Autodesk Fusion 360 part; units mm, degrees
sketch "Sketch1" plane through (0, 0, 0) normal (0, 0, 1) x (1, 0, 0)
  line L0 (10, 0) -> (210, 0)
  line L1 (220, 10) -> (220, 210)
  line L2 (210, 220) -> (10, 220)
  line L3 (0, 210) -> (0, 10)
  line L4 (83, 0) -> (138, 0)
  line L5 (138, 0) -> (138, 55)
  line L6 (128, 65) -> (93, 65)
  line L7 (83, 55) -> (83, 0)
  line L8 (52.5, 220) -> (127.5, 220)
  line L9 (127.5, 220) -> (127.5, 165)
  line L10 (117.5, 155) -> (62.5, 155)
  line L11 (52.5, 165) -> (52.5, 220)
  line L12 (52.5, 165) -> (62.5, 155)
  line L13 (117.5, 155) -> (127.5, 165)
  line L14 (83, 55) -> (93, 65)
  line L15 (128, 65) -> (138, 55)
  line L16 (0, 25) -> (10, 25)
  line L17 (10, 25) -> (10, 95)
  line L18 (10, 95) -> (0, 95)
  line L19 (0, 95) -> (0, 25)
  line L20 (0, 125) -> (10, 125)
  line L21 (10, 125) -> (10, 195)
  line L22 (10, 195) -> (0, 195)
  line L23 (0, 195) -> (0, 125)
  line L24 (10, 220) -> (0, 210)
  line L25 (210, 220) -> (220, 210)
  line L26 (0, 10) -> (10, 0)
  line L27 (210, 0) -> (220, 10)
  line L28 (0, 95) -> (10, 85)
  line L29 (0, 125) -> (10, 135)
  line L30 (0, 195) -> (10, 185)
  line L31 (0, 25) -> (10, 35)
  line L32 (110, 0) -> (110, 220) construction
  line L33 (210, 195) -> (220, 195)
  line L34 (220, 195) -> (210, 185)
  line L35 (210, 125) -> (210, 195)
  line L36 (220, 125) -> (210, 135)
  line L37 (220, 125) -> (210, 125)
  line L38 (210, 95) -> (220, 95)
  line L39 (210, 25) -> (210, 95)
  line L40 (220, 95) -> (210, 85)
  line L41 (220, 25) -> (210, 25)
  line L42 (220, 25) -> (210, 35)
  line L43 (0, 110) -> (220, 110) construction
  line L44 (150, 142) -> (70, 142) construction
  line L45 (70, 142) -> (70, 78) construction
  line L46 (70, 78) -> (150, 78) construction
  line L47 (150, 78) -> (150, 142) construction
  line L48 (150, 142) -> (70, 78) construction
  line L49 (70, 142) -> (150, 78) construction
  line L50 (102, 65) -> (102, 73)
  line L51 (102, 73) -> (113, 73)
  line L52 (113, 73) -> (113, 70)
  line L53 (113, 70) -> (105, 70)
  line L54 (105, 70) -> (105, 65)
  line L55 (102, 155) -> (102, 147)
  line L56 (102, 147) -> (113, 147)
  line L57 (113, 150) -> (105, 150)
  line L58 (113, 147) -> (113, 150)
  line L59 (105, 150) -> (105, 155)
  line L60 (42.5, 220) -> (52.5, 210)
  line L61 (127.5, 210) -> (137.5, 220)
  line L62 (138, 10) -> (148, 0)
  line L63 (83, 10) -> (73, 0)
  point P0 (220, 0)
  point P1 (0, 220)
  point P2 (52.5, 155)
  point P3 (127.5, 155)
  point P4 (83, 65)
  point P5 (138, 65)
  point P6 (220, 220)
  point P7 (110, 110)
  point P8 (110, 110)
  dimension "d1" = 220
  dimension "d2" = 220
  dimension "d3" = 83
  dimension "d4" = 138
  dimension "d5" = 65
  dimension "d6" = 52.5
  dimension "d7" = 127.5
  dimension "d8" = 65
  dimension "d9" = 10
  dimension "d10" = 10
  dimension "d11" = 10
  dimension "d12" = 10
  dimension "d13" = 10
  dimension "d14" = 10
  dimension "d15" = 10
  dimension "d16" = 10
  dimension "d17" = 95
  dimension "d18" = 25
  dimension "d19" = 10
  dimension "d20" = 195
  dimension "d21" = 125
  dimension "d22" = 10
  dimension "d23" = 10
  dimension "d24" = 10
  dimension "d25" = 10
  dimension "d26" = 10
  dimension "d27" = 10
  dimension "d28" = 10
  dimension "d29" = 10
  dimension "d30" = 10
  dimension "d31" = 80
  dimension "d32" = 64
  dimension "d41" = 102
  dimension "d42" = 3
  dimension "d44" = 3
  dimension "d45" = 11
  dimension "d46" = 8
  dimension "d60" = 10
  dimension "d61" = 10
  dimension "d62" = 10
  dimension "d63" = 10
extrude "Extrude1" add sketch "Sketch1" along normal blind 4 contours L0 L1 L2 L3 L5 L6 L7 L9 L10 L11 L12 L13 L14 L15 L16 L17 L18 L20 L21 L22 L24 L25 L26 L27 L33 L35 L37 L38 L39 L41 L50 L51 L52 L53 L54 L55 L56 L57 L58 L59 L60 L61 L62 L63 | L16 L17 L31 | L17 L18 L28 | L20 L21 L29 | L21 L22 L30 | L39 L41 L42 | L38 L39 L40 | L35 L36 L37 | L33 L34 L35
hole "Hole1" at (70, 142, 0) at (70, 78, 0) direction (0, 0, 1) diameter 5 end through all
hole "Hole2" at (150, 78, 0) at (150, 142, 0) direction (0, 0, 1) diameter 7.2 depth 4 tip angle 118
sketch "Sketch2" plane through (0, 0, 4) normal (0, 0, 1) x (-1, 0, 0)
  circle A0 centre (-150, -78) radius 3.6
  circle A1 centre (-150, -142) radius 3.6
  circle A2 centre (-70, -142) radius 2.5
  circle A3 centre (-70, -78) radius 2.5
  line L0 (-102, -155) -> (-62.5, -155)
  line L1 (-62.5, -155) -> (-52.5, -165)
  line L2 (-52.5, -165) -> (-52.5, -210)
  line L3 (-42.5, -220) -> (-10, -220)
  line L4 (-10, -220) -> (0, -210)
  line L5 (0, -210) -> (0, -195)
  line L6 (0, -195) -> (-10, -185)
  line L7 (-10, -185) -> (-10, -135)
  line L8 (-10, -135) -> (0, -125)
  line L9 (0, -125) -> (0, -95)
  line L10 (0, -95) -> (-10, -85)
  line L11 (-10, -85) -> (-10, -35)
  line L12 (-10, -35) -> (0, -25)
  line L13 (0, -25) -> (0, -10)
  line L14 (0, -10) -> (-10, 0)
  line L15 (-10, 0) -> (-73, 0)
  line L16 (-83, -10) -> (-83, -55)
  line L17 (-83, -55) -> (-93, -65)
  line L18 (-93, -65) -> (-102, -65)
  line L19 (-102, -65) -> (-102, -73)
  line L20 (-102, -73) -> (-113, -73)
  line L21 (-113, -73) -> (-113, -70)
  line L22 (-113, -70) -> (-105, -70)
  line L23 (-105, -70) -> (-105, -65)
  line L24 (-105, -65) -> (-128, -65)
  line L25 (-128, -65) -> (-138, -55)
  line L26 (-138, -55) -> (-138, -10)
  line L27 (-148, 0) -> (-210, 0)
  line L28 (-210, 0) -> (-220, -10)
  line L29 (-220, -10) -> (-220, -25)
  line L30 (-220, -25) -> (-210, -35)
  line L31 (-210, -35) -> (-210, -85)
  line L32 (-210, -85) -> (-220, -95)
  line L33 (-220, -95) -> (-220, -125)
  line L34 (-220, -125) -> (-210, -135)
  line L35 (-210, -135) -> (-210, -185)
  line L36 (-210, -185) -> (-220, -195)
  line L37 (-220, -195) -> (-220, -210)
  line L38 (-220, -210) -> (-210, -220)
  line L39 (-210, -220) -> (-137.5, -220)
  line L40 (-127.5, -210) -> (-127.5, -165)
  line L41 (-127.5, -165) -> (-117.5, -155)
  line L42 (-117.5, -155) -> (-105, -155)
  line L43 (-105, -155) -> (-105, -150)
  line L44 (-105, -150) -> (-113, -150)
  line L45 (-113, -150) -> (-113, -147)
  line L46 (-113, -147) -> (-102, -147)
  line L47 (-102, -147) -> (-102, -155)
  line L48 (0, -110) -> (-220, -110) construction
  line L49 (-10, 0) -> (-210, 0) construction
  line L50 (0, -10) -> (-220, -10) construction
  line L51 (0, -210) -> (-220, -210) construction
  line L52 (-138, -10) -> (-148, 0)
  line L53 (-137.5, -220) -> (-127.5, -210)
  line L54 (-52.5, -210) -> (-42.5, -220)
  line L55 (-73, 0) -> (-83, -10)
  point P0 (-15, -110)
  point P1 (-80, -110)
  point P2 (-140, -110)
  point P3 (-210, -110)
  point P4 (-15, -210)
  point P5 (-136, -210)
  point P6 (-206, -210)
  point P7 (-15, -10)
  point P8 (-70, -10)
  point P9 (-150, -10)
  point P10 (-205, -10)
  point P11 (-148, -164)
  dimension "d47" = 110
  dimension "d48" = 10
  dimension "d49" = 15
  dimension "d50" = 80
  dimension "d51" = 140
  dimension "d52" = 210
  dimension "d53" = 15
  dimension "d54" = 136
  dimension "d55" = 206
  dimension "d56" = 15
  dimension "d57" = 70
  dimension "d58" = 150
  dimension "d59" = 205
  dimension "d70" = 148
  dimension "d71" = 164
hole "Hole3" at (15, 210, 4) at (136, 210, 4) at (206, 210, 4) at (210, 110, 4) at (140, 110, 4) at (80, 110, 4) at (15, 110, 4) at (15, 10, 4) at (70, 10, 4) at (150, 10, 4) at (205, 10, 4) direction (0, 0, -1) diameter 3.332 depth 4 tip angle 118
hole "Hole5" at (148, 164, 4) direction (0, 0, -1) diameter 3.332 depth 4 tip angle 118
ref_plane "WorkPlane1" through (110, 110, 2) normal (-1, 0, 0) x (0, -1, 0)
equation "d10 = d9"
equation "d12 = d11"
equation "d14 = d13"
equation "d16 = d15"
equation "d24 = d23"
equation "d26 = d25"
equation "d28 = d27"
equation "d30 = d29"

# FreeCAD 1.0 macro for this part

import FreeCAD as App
import Part
import Sketcher

doc = App.newDocument("Part")
body = doc.addObject("PartDesign::Body", "Body")

sketch1 = body.newObject("Sketcher::SketchObject", "Sketch")
sketch1.AttachmentSupport = (doc.getObject("XY_Plane"), [""])
sketch1.MapMode = "FlatFace"
sketch1.addGeometry(Part.LineSegment(App.Vector(0, 10, 0), App.Vector(10, 0, 0)), False)
sketch1.addGeometry(Part.LineSegment(App.Vector(10, 0, 0), App.Vector(73, 0, 0)), False)
sketch1.addGeometry(Part.LineSegment(App.Vector(73, 0, 0), App.Vector(83, 10, 0)), False)
sketch1.addGeometry(Part.LineSegment(App.Vector(83, 10, 0), App.Vector(83, 55, 0)), False)
sketch1.addGeometry(Part.LineSegment(App.Vector(83, 55, 0), App.Vector(93, 65, 0)), False)
sketch1.addGeometry(Part.LineSegment(App.Vector(93, 65, 0), App.Vector(102, 65, 0)), False)
sketch1.addGeometry(Part.LineSegment(App.Vector(102, 65, 0), App.Vector(102, 73, 0)), False)
sketch1.addGeometry(Part.LineSegment(App.Vector(102, 73, 0), App.Vector(113, 73, 0)), False)
sketch1.addGeometry(Part.LineSegment(App.Vector(113, 73, 0), App.Vector(113, 70, 0)), False)
sketch1.addGeometry(Part.LineSegment(App.Vector(113, 70, 0), App.Vector(105, 70, 0)), False)
sketch1.addGeometry(Part.LineSegment(App.Vector(105, 70, 0), App.Vector(105, 65, 0)), False)
sketch1.addGeometry(Part.LineSegment(App.Vector(105, 65, 0), App.Vector(128, 65, 0)), False)
sketch1.addGeometry(Part.LineSegment(App.Vector(128, 65, 0), App.Vector(138, 55, 0)), False)
sketch1.addGeometry(Part.LineSegment(App.Vector(138, 55, 0), App.Vector(138, 10, 0)), False)
sketch1.addGeometry(Part.LineSegment(App.Vector(138, 10, 0), App.Vector(148, 0, 0)), False)
sketch1.addGeometry(Part.LineSegment(App.Vector(148, 0, 0), App.Vector(210, 0, 0)), False)
sketch1.addGeometry(Part.LineSegment(App.Vector(210, 0, 0), App.Vector(220, 10, 0)), False)
sketch1.addGeometry(Part.LineSegment(App.Vector(220, 10, 0), App.Vector(220, 25, 0)), False)
sketch1.addGeometry(Part.LineSegment(App.Vector(220, 25, 0), App.Vector(210, 35, 0)), False)
sketch1.addGeometry(Part.LineSegment(App.Vector(210, 35, 0), App.Vector(210, 85, 0)), False)
sketch1.addGeometry(Part.LineSegment(App.Vector(210, 85, 0), App.Vector(220, 95, 0)), False)
sketch1.addGeometry(Part.LineSegment(App.Vector(220, 95, 0), App.Vector(220, 125, 0)), False)
sketch1.addGeometry(Part.LineSegment(App.Vector(220, 125, 0), App.Vector(210, 135, 0)), False)
sketch1.addGeometry(Part.LineSegment(App.Vector(210, 135, 0), App.Vector(210, 185, 0)), False)
sketch1.addGeometry(Part.LineSegment(App.Vector(210, 185, 0), App.Vector(220, 195, 0)), False)
sketch1.addGeometry(Part.LineSegment(App.Vector(220, 195, 0), App.Vector(220, 210, 0)), False)
sketch1.addGeometry(Part.LineSegment(App.Vector(220, 210, 0), App.Vector(210, 220, 0)), False)
sketch1.addGeometry(Part.LineSegment(App.Vector(210, 220, 0), App.Vector(137.5, 220, 0)), False)
sketch1.addGeometry(Part.LineSegment(App.Vector(137.5, 220, 0), App.Vector(127.5, 210, 0)), False)
sketch1.addGeometry(Part.LineSegment(App.Vector(127.5, 210, 0), App.Vector(127.5, 165, 0)), False)
sketch1.addGeometry(Part.LineSegment(App.Vector(127.5, 165, 0), App.Vector(117.5, 155, 0)), False)
sketch1.addGeometry(Part.LineSegment(App.Vector(117.5, 155, 0), App.Vector(105, 155, 0)), False)
sketch1.addGeometry(Part.LineSegment(App.Vector(105, 155, 0), App.Vector(105, 150, 0)), False)
sketch1.addGeometry(Part.LineSegment(App.Vector(105, 150, 0), App.Vector(113, 150, 0)), False)
sketch1.addGeometry(Part.LineSegment(App.Vector(113, 150, 0), App.Vector(113, 147, 0)), False)
sketch1.addGeometry(Part.LineSegment(App.Vector(113, 147, 0), App.Vector(102, 147, 0)), False)
sketch1.addGeometry(Part.LineSegment(App.Vector(102, 147, 0), App.Vector(102, 155, 0)), False)
sketch1.addGeometry(Part.LineSegment(App.Vector(102, 155, 0), App.Vector(62.5, 155, 0)), False)
sketch1.addGeometry(Part.LineSegment(App.Vector(62.5, 155, 0), App.Vector(52.5, 165, 0)), False)
sketch1.addGeometry(Part.LineSegment(App.Vector(52.5, 165, 0), App.Vector(52.5, 210, 0)), False)
sketch1.addGeometry(Part.LineSegment(App.Vector(52.5, 210, 0), App.Vector(42.5, 220, 0)), False)
sketch1.addGeometry(Part.LineSegment(App.Vector(42.5, 220, 0), App.Vector(10, 220, 0)), False)
sketch1.addGeometry(Part.LineSegment(App.Vector(10, 220, 0), App.Vector(0, 210, 0)), False)
sketch1.addGeometry(Part.LineSegment(App.Vector(0, 210, 0), App.Vector(0, 195, 0)), False)
sketch1.addGeometry(Part.LineSegment(App.Vector(0, 195, 0), App.Vector(10, 185, 0)), False)
sketch1.addGeometry(Part.LineSegment(App.Vector(10, 185, 0), App.Vector(10, 135, 0)), False)
sketch1.addGeometry(Part.LineSegment(App.Vector(10, 135, 0), App.Vector(0, 125, 0)), False)
sketch1.addGeometry(Part.LineSegment(App.Vector(0, 125, 0), App.Vector(0, 95, 0)), False)
sketch1.addGeometry(Part.LineSegment(App.Vector(0, 95, 0), App.Vector(10, 85, 0)), False)
sketch1.addGeometry(Part.LineSegment(App.Vector(10, 85, 0), App.Vector(10, 35, 0)), False)
sketch1.addGeometry(Part.LineSegment(App.Vector(10, 35, 0), App.Vector(0, 25, 0)), False)
sketch1.addGeometry(Part.LineSegment(App.Vector(0, 25, 0), App.Vector(0, 10, 0)), False)
sketch1.addConstraint(Sketcher.Constraint("Coincident", 0, 2, 1, 1))
sketch1.addConstraint(Sketcher.Constraint("Coincident", 1, 2, 2, 1))
sketch1.addConstraint(Sketcher.Constraint("Coincident", 2, 2, 3, 1))
sketch1.addConstraint(Sketcher.Constraint("Coincident", 3, 2, 4, 1))
sketch1.addConstraint(Sketcher.Constraint("Coincident", 4, 2, 5, 1))
sketch1.addConstraint(Sketcher.Constraint("Coincident", 5, 2, 6, 1))
sketch1.addConstraint(Sketcher.Constraint("Coincident", 6, 2, 7, 1))
sketch1.addConstraint(Sketcher.Constraint("Coincident", 7, 2, 8, 1))
sketch1.addConstraint(Sketcher.Constraint("Coincident", 8, 2, 9, 1))
sketch1.addConstraint(Sketcher.Constraint("Coincident", 9, 2, 10, 1))
sketch1.addConstraint(Sketcher.Constraint("Coincident", 10, 2, 11, 1))
sketch1.addConstraint(Sketcher.Constraint("Coincident", 11, 2, 12, 1))
sketch1.addConstraint(Sketcher.Constraint("Coincident", 12, 2, 13, 1))
sketch1.addConstraint(Sketcher.Constraint("Coincident", 13, 2, 14, 1))
sketch1.addConstraint(Sketcher.Constraint("Coincident", 14, 2, 15, 1))
sketch1.addConstraint(Sketcher.Constraint("Coincident", 15, 2, 16, 1))
sketch1.addConstraint(Sketcher.Constraint("Coincident", 16, 2, 17, 1))
sketch1.addConstraint(Sketcher.Constraint("Coincident", 17, 2, 18, 1))
sketch1.addConstraint(Sketcher.Constraint("Coincident", 18, 2, 19, 1))
sketch1.addConstraint(Sketcher.Constraint("Coincident", 19, 2, 20, 1))
sketch1.addConstraint(Sketcher.Constraint("Coincident", 20, 2, 21, 1))
sketch1.addConstraint(Sketcher.Constraint("Coincident", 21, 2, 22, 1))
sketch1.addConstraint(Sketcher.Constraint("Coincident", 22, 2, 23, 1))
sketch1.addConstraint(Sketcher.Constraint("Coincident", 23, 2, 24, 1))
sketch1.addConstraint(Sketcher.Constraint("Coincident", 24, 2, 25, 1))
sketch1.addConstraint(Sketcher.Constraint("Coincident", 25, 2, 26, 1))
sketch1.addConstraint(Sketcher.Constraint("Coincident", 26, 2, 27, 1))
sketch1.addConstraint(Sketcher.Constraint("Coincident", 27, 2, 28, 1))
sketch1.addConstraint(Sketcher.Constraint("Coincident", 28, 2, 29, 1))
sketch1.addConstraint(Sketcher.Constraint("Coincident", 29, 2, 30, 1))
sketch1.addConstraint(Sketcher.Constraint("Coincident", 30, 2, 31, 1))
sketch1.addConstraint(Sketcher.Constraint("Coincident", 31, 2, 32, 1))
sketch1.addConstraint(Sketcher.Constraint("Coincident", 32, 2, 33, 1))
sketch1.addConstraint(Sketcher.Constraint("Coincident", 33, 2, 34, 1))
sketch1.addConstraint(Sketcher.Constraint("Coincident", 34, 2, 35, 1))
sketch1.addConstraint(Sketcher.Constraint("Coincident", 35, 2, 36, 1))
sketch1.addConstraint(Sketcher.Constraint("Coincident", 36, 2, 37, 1))
sketch1.addConstraint(Sketcher.Constraint("Coincident", 37, 2, 38, 1))
sketch1.addConstraint(Sketcher.Constraint("Coincident", 38, 2, 39, 1))
sketch1.addConstraint(Sketcher.Constraint("Coincident", 39, 2, 40, 1))
sketch1.addConstraint(Sketcher.Constraint("Coincident", 40, 2, 41, 1))
sketch1.addConstraint(Sketcher.Constraint("Coincident", 41, 2, 42, 1))
sketch1.addConstraint(Sketcher.Constraint("Coincident", 42, 2, 43, 1))
sketch1.addConstraint(Sketcher.Constraint("Coincident", 43, 2, 44, 1))
sketch1.addConstraint(Sketcher.Constraint("Coincident", 44, 2, 45, 1))
sketch1.addConstraint(Sketcher.Constraint("Coincident", 45, 2, 46, 1))
sketch1.addConstraint(Sketcher.Constraint("Coincident", 46, 2, 47, 1))
sketch1.addConstraint(Sketcher.Constraint("Coincident", 47, 2, 48, 1))
sketch1.addConstraint(Sketcher.Constraint("Coincident", 48, 2, 49, 1))
sketch1.addConstraint(Sketcher.Constraint("Coincident", 49, 2, 50, 1))
sketch1.addConstraint(Sketcher.Constraint("Coincident", 50, 2, 51, 1))
sketch1.addConstraint(Sketcher.Constraint("Coincident", 51, 2, 0, 1))
sketch1.addConstraint(Sketcher.Constraint("Horizontal", 1))
sketch1.addConstraint(Sketcher.Constraint("Vertical", 3))
sketch1.addConstraint(Sketcher.Constraint("Horizontal", 5))
sketch1.addConstraint(Sketcher.Constraint("Vertical", 6))
sketch1.addConstraint(Sketcher.Constraint("Horizontal", 7))
sketch1.addConstraint(Sketcher.Constraint("Vertical", 8))
sketch1.addConstraint(Sketcher.Constraint("Horizontal", 9))
sketch1.addConstraint(Sketcher.Constraint("Vertical", 10))
sketch1.addConstraint(Sketcher.Constraint("Horizontal", 11))
sketch1.addConstraint(Sketcher.Constraint("Vertical", 13))
sketch1.addConstraint(Sketcher.Constraint("Horizontal", 15))
sketch1.addConstraint(Sketcher.Constraint("Vertical", 17))
sketch1.addConstraint(Sketcher.Constraint("Vertical", 19))
sketch1.addConstraint(Sketcher.Constraint("Vertical", 21))
sketch1.addConstraint(Sketcher.Constraint("Vertical", 23))
sketch1.addConstraint(Sketcher.Constraint("Vertical", 25))
sketch1.addConstraint(Sketcher.Constraint("Horizontal", 27))
sketch1.addConstraint(Sketcher.Constraint("Vertical", 29))
sketch1.addConstraint(Sketcher.Constraint("Horizontal", 31))
sketch1.addConstraint(Sketcher.Constraint("Vertical", 32))
sketch1.addConstraint(Sketcher.Constraint("Horizontal", 33))
sketch1.addConstraint(Sketcher.Constraint("Vertical", 34))
sketch1.addConstraint(Sketcher.Constraint("Horizontal", 35))
sketch1.addConstraint(Sketcher.Constraint("Vertical", 36))
sketch1.addConstraint(Sketcher.Constraint("Horizontal", 37))
sketch1.addConstraint(Sketcher.Constraint("Vertical", 39))
sketch1.addConstraint(Sketcher.Constraint("Horizontal", 41))
sketch1.addConstraint(Sketcher.Constraint("Vertical", 43))
sketch1.addConstraint(Sketcher.Constraint("Vertical", 45))
sketch1.addConstraint(Sketcher.Constraint("Vertical", 47))
sketch1.addConstraint(Sketcher.Constraint("Vertical", 49))
sketch1.addConstraint(Sketcher.Constraint("Vertical", 51))
sketch1.addConstraint(Sketcher.Constraint("PointOnObject", 0, 2, -1))
sketch1.addConstraint(Sketcher.Constraint("PointOnObject", 14, 2, -1))
sketch1.addConstraint(Sketcher.Constraint("PointOnObject", 42, 2, -2))
sketch1.addConstraint(Sketcher.Constraint("PointOnObject", 46, 2, -2))
sketch1.addConstraint(Sketcher.Constraint("PointOnObject", 50, 2, -2))
sketch1.addConstraint(Sketcher.Constraint("Perpendicular", 0, 2))
sketch1.addConstraint(Sketcher.Constraint("Parallel", 2, 4))
sketch1.addConstraint(Sketcher.Constraint("Perpendicular", 4, 12))
sketch1.addConstraint(Sketcher.Constraint("Parallel", 12, 14))
sketch1.addConstraint(Sketcher.Constraint("Perpendicular", 14, 16))
sketch1.addConstraint(Sketcher.Constraint("Perpendicular", 16, 18))
sketch1.addConstraint(Sketcher.Constraint("Perpendicular", 18, 20))
sketch1.addConstraint(Sketcher.Constraint("Perpendicular", 20, 22))
sketch1.addConstraint(Sketcher.Constraint("Perpendicular", 22, 24))
sketch1.addConstraint(Sketcher.Constraint("Perpendicular", 24, 26))
sketch1.addConstraint(Sketcher.Constraint("Perpendicular", 26, 28))
sketch1.addConstraint(Sketcher.Constraint("Parallel", 28, 30))
sketch1.addConstraint(Sketcher.Constraint("Perpendicular", 30, 38))
sketch1.addConstraint(Sketcher.Constraint("Parallel", 38, 40))
sketch1.addConstraint(Sketcher.Constraint("Perpendicular", 40, 42))
sketch1.addConstraint(Sketcher.Constraint("Perpendicular", 42, 44))
sketch1.addConstraint(Sketcher.Constraint("Perpendicular", 44, 46))
sketch1.addConstraint(Sketcher.Constraint("Perpendicular", 46, 48))
sketch1.addConstraint(Sketcher.Constraint("Perpendicular", 48, 50))
sketch1.addConstraint(Sketcher.Constraint("Horizontal", 5, 2, 10, 2))
sketch1.addConstraint(Sketcher.Constraint("Horizontal", 3, 2, 12, 2))
sketch1.addConstraint(Sketcher.Constraint("Horizontal", 2, 2, 13, 2))
sketch1.addConstraint(Sketcher.Constraint("Horizontal", 13, 2, 16, 2))
sketch1.addConstraint(Sketcher.Constraint("Horizontal", 25, 2, 28, 2))
sketch1.addConstraint(Sketcher.Constraint("Horizontal", 31, 2, 36, 2))
sketch1.addConstraint(Sketcher.Constraint("Horizontal", 29, 2, 38, 2))
sketch1.addConstraint(Sketcher.Constraint("Horizontal", 28, 2, 39, 2))
sketch1.addConstraint(Sketcher.Constraint("Horizontal", 27, 2, 40, 2))
sketch1.addConstraint(Sketcher.Constraint("Horizontal", 39, 2, 42, 2))
sketch1.addConstraint(Sketcher.Constraint("Horizontal", 24, 2, 43, 2))
sketch1.addConstraint(Sketcher.Constraint("Horizontal", 23, 2, 44, 2))
sketch1.addConstraint(Sketcher.Constraint("Horizontal", 22, 2, 45, 2))
sketch1.addConstraint(Sketcher.Constraint("Horizontal", 21, 2, 46, 2))
sketch1.addConstraint(Sketcher.Constraint("Horizontal", 20, 2, 47, 2))
sketch1.addConstraint(Sketcher.Constraint("Horizontal", 19, 2, 48, 2))
sketch1.addConstraint(Sketcher.Constraint("Horizontal", 18, 2, 49, 2))
sketch1.addConstraint(Sketcher.Constraint("Horizontal", 17, 2, 50, 2))
sketch1.addConstraint(Sketcher.Constraint("Horizontal", 16, 2, 51, 2))
sketch1.addConstraint(Sketcher.Constraint("Vertical", 15, 2, 18, 2))
sketch1.addConstraint(Sketcher.Constraint("Vertical", 17, 2, 20, 2))
sketch1.addConstraint(Sketcher.Constraint("Vertical", 19, 2, 22, 2))
sketch1.addConstraint(Sketcher.Constraint("Vertical", 23, 2, 26, 2))
sketch1.addConstraint(Sketcher.Constraint("Vertical", 10, 2, 31, 2))
sketch1.addConstraint(Sketcher.Constraint("Vertical", 8, 2, 33, 2))
sketch1.addConstraint(Sketcher.Constraint("Vertical", 6, 2, 35, 2))
sketch1.addConstraint(Sketcher.Constraint("Equal", 33, 6))
sketch1.addConstraint(Sketcher.Constraint("Equal", 19, 23))
sketch1.addConstraint(Sketcher.Constraint("Equal", 17, 25))
sketch1.addConstraint(Sketcher.Constraint("Equal", 13, 29))
sketch1.addConstraint(Sketcher.Constraint("Equal", 10, 32))
sketch1.addConstraint(Sketcher.Constraint("Equal", 8, 34))
sketch1.addConstraint(Sketcher.Constraint("Equal", 2, 4))
sketch1.addConstraint(Sketcher.Constraint("Equal", 28, 30))
sketch1.addConstraint(Sketcher.Constraint("DistanceX", 7, 1, 7, 2, 11.0))
sketch1.addConstraint(Sketcher.Constraint("DistanceX", 9, 2, 9, 1, 8.0))
sketch1.addConstraint(Sketcher.Constraint("DistanceY", 8, 2, 8, 1, 3.0))
sketch1.addConstraint(Sketcher.Constraint("DistanceX", -1, 1, 0, 2, 10.0))
sketch1.addConstraint(Sketcher.Constraint("DistanceX", -1, 1, 2, 2, 83.0))
sketch1.addConstraint(Sketcher.Constraint("DistanceY", -1, 1, 4, 2, 65.0))
sketch1.addConstraint(Sketcher.Constraint("DistanceX", -1, 1, 5, 2, 102.0))
sketch1.addConstraint(Sketcher.Constraint("DistanceX", -1, 1, 12, 2, 138.0))
sketch1.addConstraint(Sketcher.Constraint("DistanceX", -1, 1, 16, 2, 220.0))
sketch1.addConstraint(Sketcher.Constraint("DistanceY", -1, 1, 17, 2, 25.0))
sketch1.addConstraint(Sketcher.Constraint("DistanceY", -1, 1, 20, 2, 95.0))
sketch1.addConstraint(Sketcher.Constraint("DistanceY", -1, 1, 21, 2, 125.0))
sketch1.addConstraint(Sketcher.Constraint("DistanceX", -1, 1, 28, 2, 127.5))
sketch1.addConstraint(Sketcher.Constraint("DistanceX", -1, 1, 38, 2, 52.5))
pad1 = body.newObject("PartDesign::Pad", "Pad")
pad1.Profile = sketch1
pad1.Length = 4

sketch2 = body.newObject("Sketcher::SketchObject", "Sketch001")
sketch2.AttachmentSupport = (doc.getObject("XY_Plane"), [""])
sketch2.MapMode = "FlatFace"
sketch2.addGeometry(Part.Circle(App.Vector(70, 142, 0), App.Vector(0, 0, 1), 2.5), False)
sketch2.addGeometry(Part.Circle(App.Vector(70, 78, 0), App.Vector(0, 0, 1), 2.5), False)
sketch2.addConstraint(Sketcher.Constraint("Equal", 0, 1))
sketch2.addConstraint(Sketcher.Constraint("Vertical", 0, 3, 1, 3))
sketch2.addConstraint(Sketcher.Constraint("Diameter", 0, 5.0))
sketch2.addConstraint(Sketcher.Constraint("DistanceX", -1, 1, 0, 3, 70.0))
sketch2.addConstraint(Sketcher.Constraint("DistanceY", -1, 1, 0, 3, 142.0))
sketch2.addConstraint(Sketcher.Constraint("DistanceY", -1, 1, 1, 3, 78.0))
doc.recompute()
hole = body.newObject("PartDesign::Hole", "Hole")
hole.Profile = sketch2
hole.ThreadType = "None"
hole.Diameter = 5
hole.DepthType = "ThroughAll"
hole.Reversed = True

sketch3 = body.newObject("Sketcher::SketchObject", "Sketch002")
sketch3.AttachmentSupport = (doc.getObject("XY_Plane"), [""])
sketch3.MapMode = "FlatFace"
sketch3.addGeometry(Part.Circle(App.Vector(150, 78, 0), App.Vector(0, 0, 1), 3.6), False)
sketch3.addGeometry(Part.Circle(App.Vector(150, 142, 0), App.Vector(0, 0, 1), 3.6), False)
sketch3.addConstraint(Sketcher.Constraint("Equal", 0, 1))
sketch3.addConstraint(Sketcher.Constraint("Vertical", 0, 3, 1, 3))
sketch3.addConstraint(Sketcher.Constraint("Diameter", 0, 7.2))
sketch3.addConstraint(Sketcher.Constraint("DistanceX", -1, 1, 0, 3, 150.0))
sketch3.addConstraint(Sketcher.Constraint("DistanceY", -1, 1, 0, 3, 78.0))
sketch3.addConstraint(Sketcher.Constraint("DistanceY", -1, 1, 1, 3, 142.0))
doc.recompute()
hole2 = body.newObject("PartDesign::Hole", "Hole001")
hole2.Profile = sketch3
hole2.ThreadType = "None"
hole2.Diameter = 7.2
hole2.DepthType = "Dimension"
hole2.Depth = 4
hole2.DrillPoint = "Angled"
hole2.DrillPointAngle = 118
hole2.Reversed = True

sketch4 = body.newObject("Sketcher::SketchObject", "Sketch003")
sketch4.AttachmentSupport = (doc.getObject("XY_Plane"), [""])
sketch4.MapMode = "FlatFace"
sketch4.AttachmentOffset = App.Placement(App.Vector(0, 0, 4), App.Rotation())
sketch4.addGeometry(Part.Circle(App.Vector(15, 210, 0), App.Vector(0, 0, 1), 1.666), False)
sketch4.addGeometry(Part.Circle(App.Vector(136, 210, 0), App.Vector(0, 0, 1), 1.666), False)
sketch4.addGeometry(Part.Circle(App.Vector(206, 210, 0), App.Vector(0, 0, 1), 1.666), False)
sketch4.addGeometry(Part.Circle(App.Vector(210, 110, 0), App.Vector(0, 0, 1), 1.666), False)
sketch4.addGeometry(Part.Circle(App.Vector(140, 110, 0), App.Vector(0, 0, 1), 1.666), False)
sketch4.addGeometry(Part.Circle(App.Vector(80, 110, 0), App.Vector(0, 0, 1), 1.666), False)
sketch4.addGeometry(Part.Circle(App.Vector(15, 110, 0), App.Vector(0, 0, 1), 1.666), False)
sketch4.addGeometry(Part.Circle(App.Vector(15, 10, 0), App.Vector(0, 0, 1), 1.666), False)
sketch4.addGeometry(Part.Circle(App.Vector(70, 10, 0), App.Vector(0, 0, 1), 1.666), False)
sketch4.addGeometry(Part.Circle(App.Vector(150, 10, 0), App.Vector(0, 0, 1), 1.666), False)
sketch4.addGeometry(Part.Circle(App.Vector(205, 10, 0), App.Vector(0, 0, 1), 1.666), False)
sketch4.addConstraint(Sketcher.Constraint("Equal", 0, 1))
sketch4.addConstraint(Sketcher.Constraint("Equal", 1, 2))
sketch4.addConstraint(Sketcher.Constraint("Equal", 2, 3))
sketch4.addConstraint(Sketcher.Constraint("Equal", 3, 4))
sketch4.addConstraint(Sketcher.Constraint("Equal", 4, 5))
sketch4.addConstraint(Sketcher.Constraint("Equal", 5, 6))
sketch4.addConstraint(Sketcher.Constraint("Equal", 6, 7))
sketch4.addConstraint(Sketcher.Constraint("Equal", 7, 8))
sketch4.addConstraint(Sketcher.Constraint("Equal", 8, 9))
sketch4.addConstraint(Sketcher.Constraint("Equal", 9, 10))
sketch4.addConstraint(Sketcher.Constraint("Horizontal", 0, 3, 1, 3))
sketch4.addConstraint(Sketcher.Constraint("Horizontal", 1, 3, 2, 3))
sketch4.addConstraint(Sketcher.Constraint("Horizontal", 3, 3, 4, 3))
sketch4.addConstraint(Sketcher.Constraint("Horizontal", 4, 3, 5, 3))
sketch4.addConstraint(Sketcher.Constraint("Horizontal", 5, 3, 6, 3))
sketch4.addConstraint(Sketcher.Constraint("Horizontal", 7, 3, 8, 3))
sketch4.addConstraint(Sketcher.Constraint("Horizontal", 8, 3, 9, 3))
sketch4.addConstraint(Sketcher.Constraint("Horizontal", 9, 3, 10, 3))
sketch4.addConstraint(Sketcher.Constraint("Vertical", 0, 3, 6, 3))
sketch4.addConstraint(Sketcher.Constraint("Vertical", 6, 3, 7, 3))
sketch4.addConstraint(Sketcher.Constraint("Diameter", 0, 3.332))
sketch4.addConstraint(Sketcher.Constraint("DistanceX", -1, 1, 0, 3, 15.0))
sketch4.addConstraint(Sketcher.Constraint("DistanceY", -1, 1, 0, 3, 210.0))
sketch4.addConstraint(Sketcher.Constraint("DistanceX", -1, 1, 1, 3, 136.0))
sketch4.addConstraint(Sketcher.Constraint("DistanceX", -1, 1, 2, 3, 206.0))
sketch4.addConstraint(Sketcher.Constraint("DistanceX", -1, 1, 3, 3, 210.0))
sketch4.addConstraint(Sketcher.Constraint("DistanceY", -1, 1, 3, 3, 110.0))
sketch4.addConstraint(Sketcher.Constraint("DistanceX", -1, 1, 4, 3, 140.0))
sketch4.addConstraint(Sketcher.Constraint("DistanceX", -1, 1, 5, 3, 80.0))
sketch4.addConstraint(Sketcher.Constraint("DistanceY", -1, 1, 7, 3, 10.0))
sketch4.addConstraint(Sketcher.Constraint("DistanceX", -1, 1, 8, 3, 70.0))
sketch4.addConstraint(Sketcher.Constraint("DistanceX", -1, 1, 9, 3, 150.0))
sketch4.addConstraint(Sketcher.Constraint("DistanceX", -1, 1, 10, 3, 205.0))
doc.recompute()
hole3 = body.newObject("PartDesign::Hole", "Hole002")
hole3.Profile = sketch4
hole3.ThreadType = "None"
hole3.Diameter = 3.332
hole3.DepthType = "Dimension"
hole3.Depth = 4
hole3.DrillPoint = "Angled"
hole3.DrillPointAngle = 118

sketch5 = body.newObject("Sketcher::SketchObject", "Sketch004")
sketch5.AttachmentSupport = (doc.getObject("XY_Plane"), [""])
sketch5.MapMode = "FlatFace"
sketch5.AttachmentOffset = App.Placement(App.Vector(0, 0, 4), App.Rotation())
sketch5.addGeometry(Part.Circle(App.Vector(148, 164, 0), App.Vector(0, 0, 1), 1.666), False)
sketch5.addConstraint(Sketcher.Constraint("Diameter", 0, 3.332))
sketch5.addConstraint(Sketcher.Constraint("DistanceX", -1, 1, 0, 3, 148.0))
sketch5.addConstraint(Sketcher.Constraint("DistanceY", -1, 1, 0, 3, 164.0))
doc.recompute()
hole4 = body.newObject("PartDesign::Hole", "Hole003")
hole4.Profile = sketch5
hole4.ThreadType = "None"
hole4.Diameter = 3.332
hole4.DepthType = "Dimension"
hole4.Depth = 4
hole4.DrillPoint = "Angled"
hole4.DrillPointAngle = 118

doc.recompute()
